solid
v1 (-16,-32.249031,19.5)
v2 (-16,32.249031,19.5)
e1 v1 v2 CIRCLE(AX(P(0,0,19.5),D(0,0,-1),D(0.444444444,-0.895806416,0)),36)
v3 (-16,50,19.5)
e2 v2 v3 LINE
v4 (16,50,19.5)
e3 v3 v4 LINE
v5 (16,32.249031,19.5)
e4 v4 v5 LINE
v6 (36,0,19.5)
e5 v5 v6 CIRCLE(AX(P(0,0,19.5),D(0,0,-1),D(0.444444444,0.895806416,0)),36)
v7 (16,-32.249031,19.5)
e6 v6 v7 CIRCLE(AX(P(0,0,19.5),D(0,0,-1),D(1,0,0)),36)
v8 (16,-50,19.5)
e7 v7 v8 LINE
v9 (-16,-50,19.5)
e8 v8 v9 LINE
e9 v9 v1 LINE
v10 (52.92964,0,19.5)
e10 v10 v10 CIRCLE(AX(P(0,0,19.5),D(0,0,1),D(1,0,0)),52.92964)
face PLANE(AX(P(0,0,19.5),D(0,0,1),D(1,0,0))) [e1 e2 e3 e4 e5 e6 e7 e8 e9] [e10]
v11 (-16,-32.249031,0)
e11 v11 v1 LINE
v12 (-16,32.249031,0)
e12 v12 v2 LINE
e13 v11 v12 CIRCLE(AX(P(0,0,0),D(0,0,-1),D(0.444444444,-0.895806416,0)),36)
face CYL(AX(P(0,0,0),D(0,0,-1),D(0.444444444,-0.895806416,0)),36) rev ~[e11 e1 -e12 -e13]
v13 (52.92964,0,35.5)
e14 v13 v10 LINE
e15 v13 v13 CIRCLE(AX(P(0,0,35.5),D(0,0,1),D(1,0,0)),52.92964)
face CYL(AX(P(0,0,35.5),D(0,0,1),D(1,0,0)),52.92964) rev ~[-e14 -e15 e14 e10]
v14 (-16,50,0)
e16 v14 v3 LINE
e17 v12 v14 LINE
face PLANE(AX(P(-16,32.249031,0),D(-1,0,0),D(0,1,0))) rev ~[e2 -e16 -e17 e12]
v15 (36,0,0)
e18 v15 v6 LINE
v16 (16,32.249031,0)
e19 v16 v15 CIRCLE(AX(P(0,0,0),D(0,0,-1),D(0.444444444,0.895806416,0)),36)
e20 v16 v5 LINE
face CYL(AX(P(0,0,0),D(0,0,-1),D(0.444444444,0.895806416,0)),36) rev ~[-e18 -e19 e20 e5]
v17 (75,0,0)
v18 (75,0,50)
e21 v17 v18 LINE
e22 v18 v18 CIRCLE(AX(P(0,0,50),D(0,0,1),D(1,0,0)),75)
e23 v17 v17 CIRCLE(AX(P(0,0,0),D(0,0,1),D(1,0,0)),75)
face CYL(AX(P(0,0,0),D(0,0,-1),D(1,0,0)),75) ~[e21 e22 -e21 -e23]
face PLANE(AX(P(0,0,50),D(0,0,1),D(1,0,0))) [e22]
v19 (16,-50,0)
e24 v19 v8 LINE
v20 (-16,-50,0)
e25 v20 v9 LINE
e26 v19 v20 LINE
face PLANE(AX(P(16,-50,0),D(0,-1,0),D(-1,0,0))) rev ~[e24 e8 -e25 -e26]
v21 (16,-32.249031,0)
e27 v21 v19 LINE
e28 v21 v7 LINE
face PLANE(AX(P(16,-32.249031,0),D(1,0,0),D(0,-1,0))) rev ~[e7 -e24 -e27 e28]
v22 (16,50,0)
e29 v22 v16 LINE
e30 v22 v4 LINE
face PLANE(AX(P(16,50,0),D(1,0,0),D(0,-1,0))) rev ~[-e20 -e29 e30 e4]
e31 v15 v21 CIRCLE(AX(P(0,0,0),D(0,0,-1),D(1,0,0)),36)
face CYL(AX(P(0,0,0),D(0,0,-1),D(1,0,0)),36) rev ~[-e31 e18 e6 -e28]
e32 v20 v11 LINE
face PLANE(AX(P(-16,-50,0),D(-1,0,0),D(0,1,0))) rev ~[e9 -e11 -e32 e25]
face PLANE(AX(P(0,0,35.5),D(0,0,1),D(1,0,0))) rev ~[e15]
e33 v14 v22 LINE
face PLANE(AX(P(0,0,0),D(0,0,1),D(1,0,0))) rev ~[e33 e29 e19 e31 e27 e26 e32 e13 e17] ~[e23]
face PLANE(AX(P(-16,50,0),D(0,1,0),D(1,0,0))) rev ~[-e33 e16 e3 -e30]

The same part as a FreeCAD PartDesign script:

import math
import FreeCAD as App
import Part
import Sketcher

doc = App.newDocument("Part")
body = doc.addObject("PartDesign::Body", "Body")

# Sketch on XY plane
sketch1 = doc.addObject("Sketcher::SketchObject", "Sketch")
body.addObject(sketch1)
sketch1.AttachmentSupport = (doc.XY_Plane, [""])
sketch1.MapMode = "FlatFace"
sketch1.addGeometry(Part.Circle(App.Vector(0, 0, 0), App.Vector(0, 0, 1), 75), False)
sketch1.addConstraint([
    Sketcher.Constraint("Coincident", 0, 3, -1, 1),
    Sketcher.Constraint("Diameter", 0, 150.0),
])
pad1 = doc.addObject("PartDesign::Pad", "Pad")
body.addObject(pad1)
pad1.Profile = sketch1
pad1.Length = 50

# Sketch on XY plane
sketch2 = doc.addObject("Sketcher::SketchObject", "Sketch001")
body.addObject(sketch2)
sketch2.AttachmentSupport = (doc.XY_Plane, [""])
sketch2.MapMode = "FlatFace"
sketch2.addGeometry([
    Part.ArcOfCircle(Part.Circle(App.Vector(0, 0, 0), App.Vector(0, 0, 1), 36), math.radians(0), math.radians(63.6122)),  # 0
    Part.ArcOfCircle(Part.Circle(App.Vector(0, 0, 0), App.Vector(0, 0, 1), 36), math.radians(-63.6122), math.radians(0)),  # 1
    Part.LineSegment(App.Vector(16, -32.249031, 0), App.Vector(16, -50, 0)),  # 2
    Part.LineSegment(App.Vector(16, -50, 0), App.Vector(-16, -50, 0)),  # 3
    Part.LineSegment(App.Vector(-16, -50, 0), App.Vector(-16, -32.249031, 0)),  # 4
    Part.ArcOfCircle(Part.Circle(App.Vector(0, 0, 0), App.Vector(0, 0, 1), 36), math.radians(116.3878), math.radians(243.6122)),  # 5
    Part.LineSegment(App.Vector(-16, 32.249031, 0), App.Vector(-16, 50, 0)),  # 6
    Part.LineSegment(App.Vector(-16, 50, 0), App.Vector(16, 50, 0)),  # 7
    Part.LineSegment(App.Vector(16, 50, 0), App.Vector(16, 32.249031, 0)),  # 8
], False)
sketch2.addConstraint([
    Sketcher.Constraint("Tangent", 0, 1, 1, 2),
    Sketcher.Constraint("Coincident", 1, 1, 2, 1),
    Sketcher.Constraint("Coincident", 2, 2, 3, 1),
    Sketcher.Constraint("Coincident", 3, 2, 4, 1),
    Sketcher.Constraint("Coincident", 4, 2, 5, 2),
    Sketcher.Constraint("Coincident", 5, 1, 6, 1),
    Sketcher.Constraint("Coincident", 6, 2, 7, 1),
    Sketcher.Constraint("Coincident", 7, 2, 8, 1),
    Sketcher.Constraint("Coincident", 8, 2, 0, 2),
    Sketcher.Constraint("Vertical", 2),
    Sketcher.Constraint("Horizontal", 3),
    Sketcher.Constraint("Vertical", 4),
    Sketcher.Constraint("Vertical", 6),
    Sketcher.Constraint("Horizontal", 7),
    Sketcher.Constraint("Vertical", 8),
    Sketcher.Constraint("Coincident", 0, 3, -1, 1),
    Sketcher.Constraint("Coincident", 5, 3, -1, 1),
    Sketcher.Constraint("Equal", 0, 1),
    Sketcher.Constraint("Equal", 1, 5),
    Sketcher.Constraint("Symmetric", 2, 2, 6, 2, -1, 1),
    Sketcher.Constraint("PointOnObject", 0, 1, -1),
    Sketcher.Constraint("Horizontal", 1, 1, 4, 2),
    Sketcher.Constraint("Horizontal", 5, 1, 8, 2),
    Sketcher.Constraint("Radius", 0, 36.0),
    Sketcher.Constraint("DistanceX", 3, 2, 3, 1, 32.0),
    Sketcher.Constraint("DistanceY", 2, 2, -1, 1, 50.0),
])
pocket1 = doc.addObject("PartDesign::Pocket", "Pocket")
body.addObject(pocket1)
pocket1.Profile = sketch2
pocket1.Length = 35.5
pocket1.Reversed = True

# Sketch on XY plane
sketch3 = doc.addObject("Sketcher::SketchObject", "Sketch002")
body.addObject(sketch3)
sketch3.AttachmentSupport = (doc.XY_Plane, [""])
sketch3.MapMode = "FlatFace"
sketch3.AttachmentOffset = App.Placement(App.Vector(0, 0, 35.5), App.Rotation())
sketch3.addGeometry(Part.Circle(App.Vector(0, 0, 0), App.Vector(0, 0, 1), 52.92964), False)
sketch3.addConstraint([
    Sketcher.Constraint("Coincident", 0, 3, -1, 1),
    Sketcher.Constraint("Diameter", 0, 105.85928),
])
pocket2 = doc.addObject("PartDesign::Pocket", "Pocket001")
body.addObject(pocket2)
pocket2.Profile = sketch3
pocket2.Length = 16

doc.recompute()
